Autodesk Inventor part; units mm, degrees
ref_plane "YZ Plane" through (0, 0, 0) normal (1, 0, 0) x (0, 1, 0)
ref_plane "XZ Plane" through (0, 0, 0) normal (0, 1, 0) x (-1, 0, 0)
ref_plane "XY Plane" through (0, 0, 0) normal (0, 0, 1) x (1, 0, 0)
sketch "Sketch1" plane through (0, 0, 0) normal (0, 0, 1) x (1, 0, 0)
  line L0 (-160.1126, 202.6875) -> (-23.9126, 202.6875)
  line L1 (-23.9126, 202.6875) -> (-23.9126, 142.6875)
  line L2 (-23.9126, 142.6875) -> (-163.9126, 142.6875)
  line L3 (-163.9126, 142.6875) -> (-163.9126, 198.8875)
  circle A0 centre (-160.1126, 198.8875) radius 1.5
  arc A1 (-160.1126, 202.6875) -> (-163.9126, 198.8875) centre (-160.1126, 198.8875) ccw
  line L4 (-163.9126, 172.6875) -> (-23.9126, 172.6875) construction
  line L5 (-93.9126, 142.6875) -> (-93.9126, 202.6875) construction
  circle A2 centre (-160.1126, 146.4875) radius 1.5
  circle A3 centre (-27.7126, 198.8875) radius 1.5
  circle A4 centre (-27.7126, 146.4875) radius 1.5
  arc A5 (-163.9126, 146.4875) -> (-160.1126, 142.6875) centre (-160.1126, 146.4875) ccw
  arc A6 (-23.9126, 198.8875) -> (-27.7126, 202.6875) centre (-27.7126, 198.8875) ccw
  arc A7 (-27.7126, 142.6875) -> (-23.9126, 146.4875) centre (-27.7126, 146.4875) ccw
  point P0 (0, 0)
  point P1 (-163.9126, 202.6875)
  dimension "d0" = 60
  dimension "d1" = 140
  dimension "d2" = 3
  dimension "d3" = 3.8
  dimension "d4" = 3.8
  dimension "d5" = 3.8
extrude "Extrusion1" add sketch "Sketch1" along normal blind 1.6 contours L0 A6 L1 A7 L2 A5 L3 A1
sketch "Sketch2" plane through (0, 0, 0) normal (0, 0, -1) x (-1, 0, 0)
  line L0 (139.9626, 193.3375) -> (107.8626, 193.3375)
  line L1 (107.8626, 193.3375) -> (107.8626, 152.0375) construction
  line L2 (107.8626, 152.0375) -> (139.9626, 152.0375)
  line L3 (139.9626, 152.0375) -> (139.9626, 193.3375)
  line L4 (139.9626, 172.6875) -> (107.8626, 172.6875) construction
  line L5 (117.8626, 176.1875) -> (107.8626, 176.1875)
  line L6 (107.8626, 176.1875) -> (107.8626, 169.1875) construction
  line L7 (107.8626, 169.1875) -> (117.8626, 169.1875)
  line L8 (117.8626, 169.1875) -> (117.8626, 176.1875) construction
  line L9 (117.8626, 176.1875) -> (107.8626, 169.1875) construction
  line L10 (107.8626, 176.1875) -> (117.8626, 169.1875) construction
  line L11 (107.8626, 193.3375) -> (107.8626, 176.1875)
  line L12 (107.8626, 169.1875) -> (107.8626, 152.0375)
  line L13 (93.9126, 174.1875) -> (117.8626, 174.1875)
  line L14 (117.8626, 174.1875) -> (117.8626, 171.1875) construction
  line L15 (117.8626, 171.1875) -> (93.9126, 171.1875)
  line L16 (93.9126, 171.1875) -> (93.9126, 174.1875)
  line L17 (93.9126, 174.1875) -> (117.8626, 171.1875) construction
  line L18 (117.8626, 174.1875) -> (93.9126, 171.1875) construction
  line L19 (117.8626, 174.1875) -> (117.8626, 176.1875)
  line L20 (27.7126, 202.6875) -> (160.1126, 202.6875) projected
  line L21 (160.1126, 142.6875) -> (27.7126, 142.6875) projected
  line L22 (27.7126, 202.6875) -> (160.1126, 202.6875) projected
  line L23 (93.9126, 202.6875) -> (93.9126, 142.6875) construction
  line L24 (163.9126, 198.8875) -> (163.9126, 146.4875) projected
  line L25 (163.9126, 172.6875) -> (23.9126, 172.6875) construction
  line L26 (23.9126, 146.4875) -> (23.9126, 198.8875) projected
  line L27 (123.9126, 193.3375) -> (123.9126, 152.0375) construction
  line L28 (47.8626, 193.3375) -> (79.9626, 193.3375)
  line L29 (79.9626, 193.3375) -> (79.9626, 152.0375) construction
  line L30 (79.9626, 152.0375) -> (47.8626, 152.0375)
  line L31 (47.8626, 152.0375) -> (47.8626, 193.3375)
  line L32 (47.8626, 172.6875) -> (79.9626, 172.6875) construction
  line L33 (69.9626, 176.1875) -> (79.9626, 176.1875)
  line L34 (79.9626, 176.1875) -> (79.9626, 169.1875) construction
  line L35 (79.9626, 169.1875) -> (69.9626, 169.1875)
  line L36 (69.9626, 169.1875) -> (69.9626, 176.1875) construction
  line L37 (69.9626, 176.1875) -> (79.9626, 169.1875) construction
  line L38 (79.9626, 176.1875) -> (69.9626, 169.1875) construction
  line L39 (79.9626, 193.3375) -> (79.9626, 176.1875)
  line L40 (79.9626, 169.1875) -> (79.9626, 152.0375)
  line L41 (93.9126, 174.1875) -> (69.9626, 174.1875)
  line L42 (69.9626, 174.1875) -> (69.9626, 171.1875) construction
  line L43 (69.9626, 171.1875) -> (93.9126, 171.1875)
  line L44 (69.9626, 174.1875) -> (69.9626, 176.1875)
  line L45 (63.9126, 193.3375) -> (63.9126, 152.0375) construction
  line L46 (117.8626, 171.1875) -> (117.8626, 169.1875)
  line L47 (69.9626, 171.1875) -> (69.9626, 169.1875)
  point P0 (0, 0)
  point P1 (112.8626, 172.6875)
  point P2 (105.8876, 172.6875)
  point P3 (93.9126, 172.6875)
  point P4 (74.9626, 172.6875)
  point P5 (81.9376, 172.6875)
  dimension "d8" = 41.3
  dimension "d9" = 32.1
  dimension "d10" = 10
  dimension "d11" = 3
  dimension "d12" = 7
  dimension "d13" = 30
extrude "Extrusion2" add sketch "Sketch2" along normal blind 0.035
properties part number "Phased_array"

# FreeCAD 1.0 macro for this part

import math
import FreeCAD as App
import Part
import Sketcher

V = App.Vector


def add_polygon(sketch, points):
    """Adds a closed chain of lines whose ends are joined by coincident constraints."""
    first, n = sketch.GeometryCount, len(points)
    for a, b in zip(points, points[1:] + points[:1]):
        sketch.addGeometry(Part.LineSegment(App.Vector(*a, 0), App.Vector(*b, 0)), False)
    for i in range(n):
        sketch.addConstraint(Sketcher.Constraint("Coincident", first + i, 2, first + (i + 1) % n, 1))

doc = App.newDocument("Part")
body = doc.addObject("PartDesign::Body", "Body")

# Sketch on XY plane
sketch1 = body.newObject("Sketcher::SketchObject", "Sketch")
sketch1.AttachmentSupport = (doc.getObject("XY_Plane"), [""])
sketch1.MapMode = "FlatFace"
sketch1.addGeometry([
    Part.LineSegment(V(-27.7126, 202.6875, 0), V(-160.1126, 202.6875, 0)),  # 0
    Part.ArcOfCircle(Part.Circle(V(-160.1126, 198.8875, 0), V(0, 0, 1), 3.8), math.radians(90), math.radians(180)),  # 1
    Part.LineSegment(V(-163.9126, 198.8875, 0), V(-163.9126, 146.4875, 0)),  # 2
    Part.ArcOfCircle(Part.Circle(V(-160.1126, 146.4875, 0), V(0, 0, 1), 3.8), math.radians(180), math.radians(270)),  # 3
    Part.LineSegment(V(-160.1126, 142.6875, 0), V(-27.7126, 142.6875, 0)),  # 4
    Part.ArcOfCircle(Part.Circle(V(-27.7126, 146.4875, 0), V(0, 0, 1), 3.8), math.radians(-90), math.radians(0)),  # 5
    Part.LineSegment(V(-23.9126, 146.4875, 0), V(-23.9126, 198.8875, 0)),  # 6
    Part.ArcOfCircle(Part.Circle(V(-27.7126, 198.8875, 0), V(0, 0, 1), 3.8), math.radians(0), math.radians(90)),  # 7
    Part.Circle(V(-160.1126, 146.4875, 0), V(0, 0, 1), 1.5),  # 8
    Part.Circle(V(-27.7126, 146.4875, 0), V(0, 0, 1), 1.5),  # 9
    Part.Circle(V(-160.1126, 198.8875, 0), V(0, 0, 1), 1.5),  # 10
    Part.Circle(V(-27.7126, 198.8875, 0), V(0, 0, 1), 1.5),  # 11
], False)
sketch1.addConstraint([
    Sketcher.Constraint("Tangent", 0, 2, 1, 1),
    Sketcher.Constraint("Tangent", 1, 2, 2, 1),
    Sketcher.Constraint("Tangent", 2, 2, 3, 1),
    Sketcher.Constraint("Tangent", 3, 2, 4, 1),
    Sketcher.Constraint("Tangent", 4, 2, 5, 1),
    Sketcher.Constraint("Tangent", 5, 2, 6, 1),
    Sketcher.Constraint("Tangent", 6, 2, 7, 1),
    Sketcher.Constraint("Tangent", 7, 2, 0, 1),
    Sketcher.Constraint("Horizontal", 0),
    Sketcher.Constraint("Vertical", 2),
    Sketcher.Constraint("Horizontal", 4),
    Sketcher.Constraint("Vertical", 6),
    Sketcher.Constraint("Coincident", 8, 3, 3, 3),
    Sketcher.Constraint("Coincident", 9, 3, 5, 3),
    Sketcher.Constraint("Coincident", 10, 3, 1, 3),
    Sketcher.Constraint("Coincident", 11, 3, 7, 3),
    Sketcher.Constraint("Equal", 1, 3),
    Sketcher.Constraint("Equal", 3, 5),
    Sketcher.Constraint("Equal", 5, 7),
    Sketcher.Constraint("Equal", 8, 9),
    Sketcher.Constraint("Equal", 9, 10),
    Sketcher.Constraint("Equal", 10, 11),
    Sketcher.Constraint("Diameter", 8, 3.0),
    Sketcher.Constraint("Radius", 1, 3.8),
    Sketcher.Constraint("DistanceX", 0, 2, 0, 1, 132.4),
    Sketcher.Constraint("DistanceY", 2, 2, 2, 1, 52.4),
    Sketcher.Constraint("DistanceX", 1, 3, -1, 1, 160.1126),
    Sketcher.Constraint("DistanceY", -1, 1, 1, 3, 198.8875),
])
pad1 = body.newObject("PartDesign::Pad", "Pad")
pad1.Profile = sketch1
pad1.Length = 1.6

# Sketch on XY plane
sketch2 = body.newObject("Sketcher::SketchObject", "Sketch001")
sketch2.AttachmentSupport = (doc.getObject("XY_Plane"), [""])
sketch2.MapMode = "FlatFace"
add_polygon(sketch2, [(-139.9626, 152.0375), (-139.9626, 193.3375), (-107.8626, 193.3375), (-107.8626, 176.1875), (-117.8626, 176.1875), (-117.8626, 174.1875), (-69.9626, 174.1875), (-69.9626, 176.1875), (-79.9626, 176.1875), (-79.9626, 193.3375), (-47.8626, 193.3375), (-47.8626, 152.0375), (-79.9626, 152.0375), (-79.9626, 169.1875), (-69.9626, 169.1875), (-69.9626, 171.1875), (-117.8626, 171.1875), (-117.8626, 169.1875), (-107.8626, 169.1875), (-107.8626, 152.0375)])  # lines 0-19
sketch2.addConstraint([
    Sketcher.Constraint("Vertical", 0),
    Sketcher.Constraint("Horizontal", 1),
    Sketcher.Constraint("Vertical", 2),
    Sketcher.Constraint("Horizontal", 3),
    Sketcher.Constraint("Vertical", 4),
    Sketcher.Constraint("Horizontal", 5),
    Sketcher.Constraint("Vertical", 6),
    Sketcher.Constraint("Horizontal", 7),
    Sketcher.Constraint("Vertical", 8),
    Sketcher.Constraint("Horizontal", 9),
    Sketcher.Constraint("Vertical", 10),
    Sketcher.Constraint("Horizontal", 11),
    Sketcher.Constraint("Vertical", 12),
    Sketcher.Constraint("Horizontal", 13),
    Sketcher.Constraint("Vertical", 14),
    Sketcher.Constraint("Horizontal", 15),
    Sketcher.Constraint("Vertical", 16),
    Sketcher.Constraint("Horizontal", 17),
    Sketcher.Constraint("Vertical", 18),
    Sketcher.Constraint("Horizontal", 19),
    Sketcher.Constraint("Horizontal", 3, 2, 6, 2),
    Sketcher.Constraint("Horizontal", 1, 2, 8, 2),
    Sketcher.Constraint("Horizontal", 13, 2, 16, 2),
    Sketcher.Constraint("Horizontal", 11, 2, 18, 2),
    Sketcher.Constraint("Vertical", 8, 2, 11, 2),
    Sketcher.Constraint("Vertical", 6, 2, 13, 2),
    Sketcher.Constraint("Vertical", 4, 2, 15, 2),
    Sketcher.Constraint("Vertical", 2, 2, 17, 2),
    Sketcher.Constraint("Equal", 3, 7),
    Sketcher.Constraint("Equal", 1, 9),
    Sketcher.Constraint("Equal", 8, 12),
    Sketcher.Constraint("Equal", 6, 14),
    Sketcher.Constraint("DistanceX", 3, 2, 3, 1, 10.0),
    Sketcher.Constraint("DistanceX", 1, 1, 1, 2, 32.1),
    Sketcher.Constraint("DistanceY", 0, 1, 0, 2, 41.3),
    Sketcher.Constraint("DistanceY", 12, 2, 7, 2, 7.0),
    Sketcher.Constraint("DistanceY", 14, 2, 5, 2, 3.0),
    Sketcher.Constraint("DistanceX", 5, 1, 5, 2, 47.9),
    Sketcher.Constraint("DistanceX", 0, 2, -1, 1, 139.9626),
    Sketcher.Constraint("DistanceY", -1, 1, 0, 2, 193.3375),
])
pad2 = body.newObject("PartDesign::Pad", "Pad001")
pad2.Profile = sketch2
pad2.Length = 0.035
pad2.Reversed = True

doc.recompute()
